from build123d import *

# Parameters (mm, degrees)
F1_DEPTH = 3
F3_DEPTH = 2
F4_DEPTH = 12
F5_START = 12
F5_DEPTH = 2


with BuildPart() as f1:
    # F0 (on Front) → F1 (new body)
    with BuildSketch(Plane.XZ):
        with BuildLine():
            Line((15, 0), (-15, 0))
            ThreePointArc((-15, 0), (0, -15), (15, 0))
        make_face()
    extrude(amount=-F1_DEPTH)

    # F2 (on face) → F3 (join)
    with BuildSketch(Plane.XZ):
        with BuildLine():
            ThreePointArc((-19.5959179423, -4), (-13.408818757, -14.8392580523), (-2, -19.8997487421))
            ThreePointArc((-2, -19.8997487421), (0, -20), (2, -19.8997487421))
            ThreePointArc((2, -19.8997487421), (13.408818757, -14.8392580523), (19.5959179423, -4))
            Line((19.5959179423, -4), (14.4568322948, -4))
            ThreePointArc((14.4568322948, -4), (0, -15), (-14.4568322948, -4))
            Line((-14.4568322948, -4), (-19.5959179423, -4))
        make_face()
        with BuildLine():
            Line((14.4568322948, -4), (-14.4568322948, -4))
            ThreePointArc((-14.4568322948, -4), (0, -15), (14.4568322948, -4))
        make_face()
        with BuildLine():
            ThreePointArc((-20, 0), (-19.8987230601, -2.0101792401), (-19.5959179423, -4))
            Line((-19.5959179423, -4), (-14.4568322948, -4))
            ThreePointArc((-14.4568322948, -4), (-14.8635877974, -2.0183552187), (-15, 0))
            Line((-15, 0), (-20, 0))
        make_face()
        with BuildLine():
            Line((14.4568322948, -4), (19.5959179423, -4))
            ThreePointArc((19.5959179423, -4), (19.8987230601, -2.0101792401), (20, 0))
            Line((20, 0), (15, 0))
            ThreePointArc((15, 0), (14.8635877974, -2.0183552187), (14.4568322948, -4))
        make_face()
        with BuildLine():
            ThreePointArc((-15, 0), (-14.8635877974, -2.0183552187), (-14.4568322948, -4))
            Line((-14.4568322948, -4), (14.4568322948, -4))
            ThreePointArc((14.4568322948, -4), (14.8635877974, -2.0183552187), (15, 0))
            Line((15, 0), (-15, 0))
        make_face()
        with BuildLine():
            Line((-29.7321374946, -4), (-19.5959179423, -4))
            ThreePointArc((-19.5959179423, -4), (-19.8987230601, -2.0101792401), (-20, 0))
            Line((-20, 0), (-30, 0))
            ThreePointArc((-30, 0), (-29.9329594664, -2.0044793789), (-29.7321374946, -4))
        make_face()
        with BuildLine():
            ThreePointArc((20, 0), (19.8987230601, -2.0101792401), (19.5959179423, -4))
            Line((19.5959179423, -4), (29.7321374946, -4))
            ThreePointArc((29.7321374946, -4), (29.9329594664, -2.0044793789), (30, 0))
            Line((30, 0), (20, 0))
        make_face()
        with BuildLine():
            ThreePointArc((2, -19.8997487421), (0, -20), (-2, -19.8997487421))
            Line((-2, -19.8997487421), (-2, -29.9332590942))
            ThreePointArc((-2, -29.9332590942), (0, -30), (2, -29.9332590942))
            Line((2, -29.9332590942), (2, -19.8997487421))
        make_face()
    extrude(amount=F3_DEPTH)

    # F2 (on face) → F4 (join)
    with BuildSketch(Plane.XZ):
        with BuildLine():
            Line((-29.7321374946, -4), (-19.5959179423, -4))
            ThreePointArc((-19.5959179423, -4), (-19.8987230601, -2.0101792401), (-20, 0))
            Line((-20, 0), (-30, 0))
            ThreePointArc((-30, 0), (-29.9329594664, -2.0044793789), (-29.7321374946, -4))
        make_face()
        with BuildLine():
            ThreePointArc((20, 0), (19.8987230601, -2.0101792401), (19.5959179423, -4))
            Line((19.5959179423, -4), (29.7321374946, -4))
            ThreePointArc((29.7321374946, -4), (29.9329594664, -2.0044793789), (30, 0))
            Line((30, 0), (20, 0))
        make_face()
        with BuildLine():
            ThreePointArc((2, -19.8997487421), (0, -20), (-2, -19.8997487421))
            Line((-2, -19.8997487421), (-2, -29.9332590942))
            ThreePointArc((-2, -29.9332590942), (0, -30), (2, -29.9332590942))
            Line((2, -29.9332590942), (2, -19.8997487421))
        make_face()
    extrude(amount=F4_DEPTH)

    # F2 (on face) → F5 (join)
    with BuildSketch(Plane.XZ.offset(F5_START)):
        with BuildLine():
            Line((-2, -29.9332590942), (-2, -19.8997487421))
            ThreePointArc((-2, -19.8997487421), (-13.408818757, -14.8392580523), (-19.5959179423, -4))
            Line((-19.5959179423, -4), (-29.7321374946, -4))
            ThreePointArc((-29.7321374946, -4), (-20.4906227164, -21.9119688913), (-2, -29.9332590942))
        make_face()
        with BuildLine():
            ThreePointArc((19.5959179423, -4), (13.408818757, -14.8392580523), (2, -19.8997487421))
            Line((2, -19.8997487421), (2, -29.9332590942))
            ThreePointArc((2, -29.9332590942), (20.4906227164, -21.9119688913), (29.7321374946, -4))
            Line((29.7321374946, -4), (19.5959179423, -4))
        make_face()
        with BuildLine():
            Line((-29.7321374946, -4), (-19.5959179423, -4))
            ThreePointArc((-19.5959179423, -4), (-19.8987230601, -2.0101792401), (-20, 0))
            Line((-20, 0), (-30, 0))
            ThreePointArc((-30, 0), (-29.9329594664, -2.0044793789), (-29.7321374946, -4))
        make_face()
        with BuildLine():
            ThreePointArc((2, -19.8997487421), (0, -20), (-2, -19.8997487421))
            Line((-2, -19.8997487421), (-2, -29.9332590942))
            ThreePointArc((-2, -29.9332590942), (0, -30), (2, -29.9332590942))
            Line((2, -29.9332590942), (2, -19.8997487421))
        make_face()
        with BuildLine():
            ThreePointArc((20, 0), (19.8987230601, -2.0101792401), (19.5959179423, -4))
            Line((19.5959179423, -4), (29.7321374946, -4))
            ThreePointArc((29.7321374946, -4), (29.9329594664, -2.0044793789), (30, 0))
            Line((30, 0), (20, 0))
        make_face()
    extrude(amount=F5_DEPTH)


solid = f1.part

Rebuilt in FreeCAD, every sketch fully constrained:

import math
import FreeCAD as App
import Part
import Sketcher

doc = App.newDocument("Part")
body = doc.addObject("PartDesign::Body", "Body")

# Sketch on XZ plane
sketch1 = doc.addObject("Sketcher::SketchObject", "Sketch")
body.addObject(sketch1)
sketch1.AttachmentSupport = (doc.XZ_Plane, [""])
sketch1.MapMode = "FlatFace"
sketch1.addGeometry(Part.LineSegment(App.Vector(15, 0, 0), App.Vector(-15, 0, 0)), False)
sketch1.addGeometry(Part.ArcOfCircle(Part.Circle(App.Vector(0, 0, 0), App.Vector(0, 0, 1), 15), math.radians(180), math.radians(360)), False)
sketch1.addConstraint(Sketcher.Constraint("Coincident", 0, 1, 1, 2))
sketch1.addConstraint(Sketcher.Constraint("Coincident", 1, 1, 0, 2))
sketch1.addConstraint(Sketcher.Constraint("Horizontal", 0))
sketch1.addConstraint(Sketcher.Constraint("Coincident", 1, 3, -1, 1))
sketch1.addConstraint(Sketcher.Constraint("PointOnObject", 0, 1, -1))
sketch1.addConstraint(Sketcher.Constraint("Radius", 1, 15.0))
pad1 = doc.addObject("PartDesign::Pad", "Pad")
body.addObject(pad1)
pad1.Profile = sketch1
pad1.Length = 3
pad1.Reversed = True

# Sketch on XZ plane
sketch2 = doc.addObject("Sketcher::SketchObject", "Sketch001")
body.addObject(sketch2)
sketch2.AttachmentSupport = (doc.XZ_Plane, [""])
sketch2.MapMode = "FlatFace"
sketch2.addGeometry(Part.ArcOfCircle(Part.Circle(App.Vector(0, 0, 0), App.Vector(0, 0, 1), 20), math.radians(-168), math.radians(-96)), False)
sketch2.addGeometry(Part.LineSegment(App.Vector(-2, -19.9, 0), App.Vector(-2, -29.9, 0)), False)
sketch2.addGeometry(Part.ArcOfCircle(Part.Circle(App.Vector(0, 0, 0), App.Vector(0, 0, 1), 30), math.radians(-93.82), math.radians(-86.18)), False)
sketch2.addGeometry(Part.LineSegment(App.Vector(2, -29.9, 0), App.Vector(2, -19.9, 0)), False)
sketch2.addGeometry(Part.ArcOfCircle(Part.Circle(App.Vector(0, 0, 0), App.Vector(0, 0, 1), 20), math.radians(-84), math.radians(-12)), False)
sketch2.addGeometry(Part.LineSegment(App.Vector(19.6, -4, 0), App.Vector(29.7, -4, 0)), False)
sketch2.addGeometry(Part.ArcOfCircle(Part.Circle(App.Vector(0, 0, 0), App.Vector(0, 0, 1), 30), math.radians(-7.66), math.radians(0)), False)
sketch2.addGeometry(Part.LineSegment(App.Vector(30, 0, 0), App.Vector(-30, 0, 0)), False)
sketch2.addGeometry(Part.ArcOfCircle(Part.Circle(App.Vector(0, 0, 0), App.Vector(0, 0, 1), 30), math.radians(-180), math.radians(-172.34)), False)
sketch2.addGeometry(Part.LineSegment(App.Vector(-29.7, -4, 0), App.Vector(-19.6, -4, 0)), False)
sketch2.addConstraint(Sketcher.Constraint("Coincident", 0, 2, 1, 1))
sketch2.addConstraint(Sketcher.Constraint("Coincident", 1, 2, 2, 1))
sketch2.addConstraint(Sketcher.Constraint("Coincident", 2, 2, 3, 1))
sketch2.addConstraint(Sketcher.Constraint("Coincident", 3, 2, 4, 1))
sketch2.addConstraint(Sketcher.Constraint("Coincident", 4, 2, 5, 1))
sketch2.addConstraint(Sketcher.Constraint("Coincident", 5, 2, 6, 1))
sketch2.addConstraint(Sketcher.Constraint("Coincident", 6, 2, 7, 1))
sketch2.addConstraint(Sketcher.Constraint("Coincident", 7, 2, 8, 1))
sketch2.addConstraint(Sketcher.Constraint("Coincident", 8, 2, 9, 1))
sketch2.addConstraint(Sketcher.Constraint("Coincident", 9, 2, 0, 1))
sketch2.addConstraint(Sketcher.Constraint("Vertical", 1))
sketch2.addConstraint(Sketcher.Constraint("Vertical", 3))
sketch2.addConstraint(Sketcher.Constraint("Horizontal", 5))
sketch2.addConstraint(Sketcher.Constraint("Horizontal", 7))
sketch2.addConstraint(Sketcher.Constraint("Horizontal", 9))
sketch2.addConstraint(Sketcher.Constraint("Coincident", 0, 3, -1, 1))
sketch2.addConstraint(Sketcher.Constraint("Coincident", 2, 3, -1, 1))
sketch2.addConstraint(Sketcher.Constraint("Coincident", 4, 3, -1, 1))
sketch2.addConstraint(Sketcher.Constraint("Coincident", 6, 3, -1, 1))
sketch2.addConstraint(Sketcher.Constraint("Coincident", 8, 3, -1, 1))
sketch2.addConstraint(Sketcher.Constraint("Equal", 0, 4))
sketch2.addConstraint(Sketcher.Constraint("Equal", 2, 6))
sketch2.addConstraint(Sketcher.Constraint("Equal", 6, 8))
sketch2.addConstraint(Sketcher.Constraint("PointOnObject", 6, 2, -1))
sketch2.addConstraint(Sketcher.Constraint("Horizontal", 1, 2, 2, 2))
sketch2.addConstraint(Sketcher.Constraint("Horizontal", 5, 2, 8, 2))
sketch2.addConstraint(Sketcher.Constraint("Radius", 0, 20.0))
sketch2.addConstraint(Sketcher.Constraint("Radius", 2, 30.0))
sketch2.addConstraint(Sketcher.Constraint("DistanceX", 0, 2, -1, 1, 2.0))
sketch2.addConstraint(Sketcher.Constraint("DistanceY", 4, 2, -1, 1, 4.0))
pad2 = doc.addObject("PartDesign::Pad", "Pad001")
body.addObject(pad2)
pad2.Profile = sketch2
pad2.Length = 2

# Sketch on XZ plane
sketch3 = doc.addObject("Sketcher::SketchObject", "Sketch002")
body.addObject(sketch3)
sketch3.AttachmentSupport = (doc.XZ_Plane, [""])
sketch3.MapMode = "FlatFace"
sketch3.addGeometry(Part.LineSegment(App.Vector(-29.7, -4, 0), App.Vector(-19.6, -4, 0)), False)
sketch3.addGeometry(Part.ArcOfCircle(Part.Circle(App.Vector(0, 0, 0), App.Vector(0, 0, 1), 20), math.radians(180), math.radians(191.54)), False)
sketch3.addGeometry(Part.LineSegment(App.Vector(-20, 0, 0), App.Vector(-30, 0, 0)), False)
sketch3.addGeometry(Part.ArcOfCircle(Part.Circle(App.Vector(0, 0, 0), App.Vector(0, 0, 1), 30), math.radians(-180), math.radians(-172.34)), False)
sketch3.addGeometry(Part.ArcOfCircle(Part.Circle(App.Vector(0, 0, 0), App.Vector(0, 0, 1), 20), math.radians(-11.54), math.radians(0)), False)
sketch3.addGeometry(Part.LineSegment(App.Vector(19.6, -4, 0), App.Vector(29.7, -4, 0)), False)
sketch3.addGeometry(Part.ArcOfCircle(Part.Circle(App.Vector(0, 0, 0), App.Vector(0, 0, 1), 30), math.radians(-7.66), math.radians(0)), False)
sketch3.addGeometry(Part.LineSegment(App.Vector(30, 0, 0), App.Vector(20, 0, 0)), False)
sketch3.addGeometry(Part.ArcOfCircle(Part.Circle(App.Vector(0, 0, 0), App.Vector(0, 0, 1), 20), math.radians(-95.74), math.radians(-84.26)), False)
sketch3.addGeometry(Part.LineSegment(App.Vector(-2, -19.9, 0), App.Vector(-2, -29.9, 0)), False)
sketch3.addGeometry(Part.ArcOfCircle(Part.Circle(App.Vector(0, 0, 0), App.Vector(0, 0, 1), 30), math.radians(-93.82), math.radians(-86.18)), False)
sketch3.addGeometry(Part.LineSegment(App.Vector(2, -29.9, 0), App.Vector(2, -19.9, 0)), False)
sketch3.addConstraint(Sketcher.Constraint("Coincident", 0, 2, 1, 2))
sketch3.addConstraint(Sketcher.Constraint("Coincident", 1, 1, 2, 1))
sketch3.addConstraint(Sketcher.Constraint("Coincident", 2, 2, 3, 1))
sketch3.addConstraint(Sketcher.Constraint("Coincident", 3, 2, 0, 1))
sketch3.addConstraint(Sketcher.Constraint("Coincident", 4, 1, 5, 1))
sketch3.addConstraint(Sketcher.Constraint("Coincident", 5, 2, 6, 1))
sketch3.addConstraint(Sketcher.Constraint("Coincident", 6, 2, 7, 1))
sketch3.addConstraint(Sketcher.Constraint("Coincident", 7, 2, 4, 2))
sketch3.addConstraint(Sketcher.Constraint("Coincident", 8, 1, 9, 1))
sketch3.addConstraint(Sketcher.Constraint("Coincident", 9, 2, 10, 1))
sketch3.addConstraint(Sketcher.Constraint("Coincident", 10, 2, 11, 1))
sketch3.addConstraint(Sketcher.Constraint("Coincident", 11, 2, 8, 2))
sketch3.addConstraint(Sketcher.Constraint("Horizontal", 0))
sketch3.addConstraint(Sketcher.Constraint("Horizontal", 2))
sketch3.addConstraint(Sketcher.Constraint("Horizontal", 5))
sketch3.addConstraint(Sketcher.Constraint("Horizontal", 7))
sketch3.addConstraint(Sketcher.Constraint("Vertical", 9))
sketch3.addConstraint(Sketcher.Constraint("Vertical", 11))
sketch3.addConstraint(Sketcher.Constraint("Coincident", 1, 3, -1, 1))
sketch3.addConstraint(Sketcher.Constraint("Coincident", 3, 3, -1, 1))
sketch3.addConstraint(Sketcher.Constraint("Coincident", 4, 3, -1, 1))
sketch3.addConstraint(Sketcher.Constraint("Coincident", 6, 3, -1, 1))
sketch3.addConstraint(Sketcher.Constraint("Coincident", 8, 3, -1, 1))
sketch3.addConstraint(Sketcher.Constraint("Coincident", 10, 3, -1, 1))
sketch3.addConstraint(Sketcher.Constraint("Equal", 1, 4))
sketch3.addConstraint(Sketcher.Constraint("Equal", 3, 6))
sketch3.addConstraint(Sketcher.Constraint("Equal", 4, 8))
sketch3.addConstraint(Sketcher.Constraint("Equal", 6, 10))
sketch3.addConstraint(Sketcher.Constraint("PointOnObject", 1, 1, -1))
sketch3.addConstraint(Sketcher.Constraint("PointOnObject", 6, 2, -1))
sketch3.addConstraint(Sketcher.Constraint("Horizontal", 3, 2, 4, 1))
sketch3.addConstraint(Sketcher.Constraint("Horizontal", 9, 2, 10, 2))
sketch3.addConstraint(Sketcher.Constraint("Radius", 1, 20.0))
sketch3.addConstraint(Sketcher.Constraint("Radius", 3, 30.0))
sketch3.addConstraint(Sketcher.Constraint("DistanceY", 0, 2, -1, 1, 4.0))
sketch3.addConstraint(Sketcher.Constraint("DistanceX", 8, 1, -1, 1, 2.0))
pad3 = doc.addObject("PartDesign::Pad", "Pad002")
body.addObject(pad3)
pad3.Profile = sketch3
pad3.Length = 12

# Sketch on XZ plane
sketch4 = doc.addObject("Sketcher::SketchObject", "Sketch003")
body.addObject(sketch4)
sketch4.AttachmentSupport = (doc.XZ_Plane, [""])
sketch4.MapMode = "FlatFace"
sketch4.AttachmentOffset = App.Placement(App.Vector(0, 0, 12), App.Rotation())
sketch4.addGeometry(Part.ArcOfCircle(Part.Circle(App.Vector(0, 0, 0), App.Vector(0, 0, 1), 20), math.radians(-168), math.radians(-96)), False)
sketch4.addGeometry(Part.ArcOfCircle(Part.Circle(App.Vector(0, 0, 0), App.Vector(0, 0, 1), 20), math.radians(180), math.radians(191.54)), False)
sketch4.addGeometry(Part.LineSegment(App.Vector(-20, 0, 0), App.Vector(-30, 0, 0)), False)
sketch4.addGeometry(Part.ArcOfCircle(Part.Circle(App.Vector(0, 0, 0), App.Vector(0, 0, 1), 30), math.radians(-180), math.radians(-172.34)), False)
sketch4.addGeometry(Part.ArcOfCircle(Part.Circle(App.Vector(0, 0, 0), App.Vector(0, 0, 1), 30), math.radians(-172), math.radians(-94)), False)
sketch4.addGeometry(Part.ArcOfCircle(Part.Circle(App.Vector(0, 0, 0), App.Vector(0, 0, 1), 30), math.radians(-93.82), math.radians(-86.18)), False)
sketch4.addGeometry(Part.ArcOfCircle(Part.Circle(App.Vector(0, 0, 0), App.Vector(0, 0, 1), 30), math.radians(-86), math.radians(-8)), False)
sketch4.addGeometry(Part.ArcOfCircle(Part.Circle(App.Vector(0, 0, 0), App.Vector(0, 0, 1), 30), math.radians(-7.66), math.radians(0)), False)
sketch4.addGeometry(Part.LineSegment(App.Vector(30, 0, 0), App.Vector(20, 0, 0)), False)
sketch4.addGeometry(Part.ArcOfCircle(Part.Circle(App.Vector(0, 0, 0), App.Vector(0, 0, 1), 20), math.radians(-11.54), math.radians(0)), False)
sketch4.addGeometry(Part.ArcOfCircle(Part.Circle(App.Vector(0, 0, 0), App.Vector(0, 0, 1), 20), math.radians(-84), math.radians(-12)), False)
sketch4.addGeometry(Part.ArcOfCircle(Part.Circle(App.Vector(0, 0, 0), App.Vector(0, 0, 1), 20), math.radians(-95.74), math.radians(-84.26)), False)
sketch4.addConstraint(Sketcher.Constraint("Tangent", 0, 1, 1, 2))
sketch4.addConstraint(Sketcher.Constraint("Coincident", 1, 1, 2, 1))
sketch4.addConstraint(Sketcher.Constraint("Coincident", 2, 2, 3, 1))
sketch4.addConstraint(Sketcher.Constraint("Tangent", 3, 2, 4, 1))
sketch4.addConstraint(Sketcher.Constraint("Tangent", 4, 2, 5, 1))
sketch4.addConstraint(Sketcher.Constraint("Tangent", 5, 2, 6, 1))
sketch4.addConstraint(Sketcher.Constraint("Tangent", 6, 2, 7, 1))
sketch4.addConstraint(Sketcher.Constraint("Coincident", 7, 2, 8, 1))
sketch4.addConstraint(Sketcher.Constraint("Coincident", 8, 2, 9, 2))
sketch4.addConstraint(Sketcher.Constraint("Tangent", 9, 1, 10, 2))
sketch4.addConstraint(Sketcher.Constraint("Tangent", 10, 1, 11, 2))
sketch4.addConstraint(Sketcher.Constraint("Tangent", 11, 1, 0, 2))
sketch4.addConstraint(Sketcher.Constraint("Horizontal", 2))
sketch4.addConstraint(Sketcher.Constraint("Horizontal", 8))
sketch4.addConstraint(Sketcher.Constraint("Coincident", 0, 3, -1, 1))
sketch4.addConstraint(Sketcher.Constraint("Coincident", 3, 3, -1, 1))
sketch4.addConstraint(Sketcher.Constraint("Coincident", 5, 3, -1, 1))
sketch4.addConstraint(Sketcher.Constraint("Coincident", 7, 3, -1, 1))
sketch4.addConstraint(Sketcher.Constraint("Coincident", 9, 3, -1, 1))
sketch4.addConstraint(Sketcher.Constraint("Equal", 0, 1))
sketch4.addConstraint(Sketcher.Constraint("Equal", 1, 9))
sketch4.addConstraint(Sketcher.Constraint("PointOnObject", 1, 1, -1))
sketch4.addConstraint(Sketcher.Constraint("PointOnObject", 7, 2, -1))
sketch4.addConstraint(Sketcher.Constraint("Horizontal", 0, 1, 3, 2))
sketch4.addConstraint(Sketcher.Constraint("Horizontal", 4, 2, 5, 2))
sketch4.addConstraint(Sketcher.Constraint("Horizontal", 3, 2, 6, 2))
sketch4.addConstraint(Sketcher.Constraint("Horizontal", 6, 2, 9, 1))
sketch4.addConstraint(Sketcher.Constraint("Horizontal", 10, 1, 11, 1))
sketch4.addConstraint(Sketcher.Constraint("Vertical", 5, 2, 10, 1))
sketch4.addConstraint(Sketcher.Constraint("Radius", 0, 20.0))
sketch4.addConstraint(Sketcher.Constraint("Radius", 3, 30.0))
sketch4.addConstraint(Sketcher.Constraint("DistanceY", 0, 1, -1, 1, 4.0))
sketch4.addConstraint(Sketcher.Constraint("DistanceX", 4, 2, -1, 1, 2.0))
pad4 = doc.addObject("PartDesign::Pad", "Pad003")
body.addObject(pad4)
pad4.Profile = sketch4
pad4.Length = 2

doc.recompute()
